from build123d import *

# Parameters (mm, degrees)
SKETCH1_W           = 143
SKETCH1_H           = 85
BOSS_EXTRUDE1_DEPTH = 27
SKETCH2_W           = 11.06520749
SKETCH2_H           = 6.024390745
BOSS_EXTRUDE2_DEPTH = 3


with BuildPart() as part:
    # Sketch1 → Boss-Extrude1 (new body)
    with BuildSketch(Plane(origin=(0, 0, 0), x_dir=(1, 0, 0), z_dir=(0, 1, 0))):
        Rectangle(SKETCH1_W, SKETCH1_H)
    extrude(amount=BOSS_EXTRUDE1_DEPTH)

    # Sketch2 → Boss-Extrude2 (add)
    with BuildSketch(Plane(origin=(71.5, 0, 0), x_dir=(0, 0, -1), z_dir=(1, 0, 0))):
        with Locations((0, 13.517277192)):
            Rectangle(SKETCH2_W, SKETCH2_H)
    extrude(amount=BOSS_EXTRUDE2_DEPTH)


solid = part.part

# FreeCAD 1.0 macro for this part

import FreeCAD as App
import Part
import Sketcher
Q = App.Units.Quantity


def add_polygon(sketch, points):
    """Adds a closed chain of lines whose ends are joined by coincident constraints."""
    first, n = sketch.GeometryCount, len(points)
    for a, b in zip(points, points[1:] + points[:1]):
        sketch.addGeometry(Part.LineSegment(App.Vector(*a, 0), App.Vector(*b, 0)), False)
    for i in range(n):
        sketch.addConstraint(Sketcher.Constraint("Coincident", first + i, 2, first + (i + 1) % n, 1))

doc = App.newDocument("Part")
body = doc.addObject("PartDesign::Body", "Body")

# Sketch on XZ plane
sketch1 = body.newObject("Sketcher::SketchObject", "Sketch")
sketch1.AttachmentSupport = (doc.getObject("XZ_Plane"), [""])
sketch1.MapMode = "FlatFace"
add_polygon(sketch1, [(-72, -42), (-72, 42), (72, 42), (72, -42)])  # lines 0-3
sketch1.addConstraint(Sketcher.Constraint("Vertical", 0))
sketch1.addConstraint(Sketcher.Constraint("Horizontal", 1))
sketch1.addConstraint(Sketcher.Constraint("Vertical", 2))
sketch1.addConstraint(Sketcher.Constraint("Horizontal", 3))
sketch1.addConstraint(Sketcher.Constraint("Symmetric", 0, 2, 2, 2, -1, 1))
sketch1.addConstraint(Sketcher.Constraint("DistanceX", 1, 1, 1, 2, Q("143 mm")))
sketch1.addConstraint(Sketcher.Constraint("DistanceY", 0, 1, 0, 2, Q("85 mm")))
pad1 = body.newObject("PartDesign::Pad", "Pad")
pad1.Profile = sketch1
pad1.Length = 27
pad1.Reversed = True

# Sketch on YZ plane
sketch2 = body.newObject("Sketcher::SketchObject", "Sketch001")
sketch2.AttachmentSupport = (doc.getObject("YZ_Plane"), [""])
sketch2.MapMode = "FlatFace"
sketch2.AttachmentOffset = App.Placement(App.Vector(0, 0, 71.5), App.Rotation())
add_polygon(sketch2, [(17, 6), (11, 6), (11, -6), (17, -6)])  # lines 0-3
sketch2.addConstraint(Sketcher.Constraint("Horizontal", 0))
sketch2.addConstraint(Sketcher.Constraint("Vertical", 1))
sketch2.addConstraint(Sketcher.Constraint("Horizontal", 2))
sketch2.addConstraint(Sketcher.Constraint("Vertical", 3))
sketch2.addConstraint(Sketcher.Constraint("DistanceX", 0, 2, 0, 1, Q("6.024391 mm")))
sketch2.addConstraint(Sketcher.Constraint("DistanceY", 1, 2, 1, 1, Q("11.065207 mm")))
sketch2.addConstraint(Sketcher.Constraint("DistanceX", -1, 1, 0, 2, Q("10.505082 mm")))
sketch2.addConstraint(Sketcher.Constraint("DistanceY", -1, 1, 0, 2, Q("5.532604 mm")))
pad2 = body.newObject("PartDesign::Pad", "Pad001")
pad2.Profile = sketch2
pad2.Length = 3

doc.recompute()
